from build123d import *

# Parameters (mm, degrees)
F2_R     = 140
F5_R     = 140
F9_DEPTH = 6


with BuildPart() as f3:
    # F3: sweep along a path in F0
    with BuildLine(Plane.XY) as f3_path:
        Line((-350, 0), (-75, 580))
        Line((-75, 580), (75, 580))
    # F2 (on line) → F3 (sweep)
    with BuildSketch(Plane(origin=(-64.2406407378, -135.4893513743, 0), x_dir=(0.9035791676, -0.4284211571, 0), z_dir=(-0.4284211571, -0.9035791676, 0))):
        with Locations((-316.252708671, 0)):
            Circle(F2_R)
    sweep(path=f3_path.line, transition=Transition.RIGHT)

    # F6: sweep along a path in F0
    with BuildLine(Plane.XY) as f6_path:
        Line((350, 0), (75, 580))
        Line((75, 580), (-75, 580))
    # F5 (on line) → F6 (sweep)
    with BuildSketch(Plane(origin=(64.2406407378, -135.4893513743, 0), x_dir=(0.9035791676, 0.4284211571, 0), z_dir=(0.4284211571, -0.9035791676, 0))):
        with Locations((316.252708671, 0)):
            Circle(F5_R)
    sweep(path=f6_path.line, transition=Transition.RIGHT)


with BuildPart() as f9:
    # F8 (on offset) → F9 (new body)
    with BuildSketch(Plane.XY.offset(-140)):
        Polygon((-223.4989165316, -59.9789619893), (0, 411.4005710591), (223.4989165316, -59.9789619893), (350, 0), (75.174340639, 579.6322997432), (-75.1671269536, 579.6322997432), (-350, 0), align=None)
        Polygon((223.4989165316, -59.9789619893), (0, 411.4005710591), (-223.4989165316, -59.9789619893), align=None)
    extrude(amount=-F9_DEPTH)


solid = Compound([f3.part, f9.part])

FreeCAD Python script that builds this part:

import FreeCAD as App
import Part
import Sketcher
Q = App.Units.Quantity

doc = App.newDocument("Part")
body = doc.addObject("PartDesign::Body", "Body")

# Sketch on an angled plane
sketch1 = doc.addObject("Sketcher::SketchObject", "Sketch")
body.addObject(sketch1)
sketch1.Placement = App.Placement(App.Vector(-64.240641, -135.489351, 0), App.Rotation(App.Vector(0.903579168, -0.428421157, 0), App.Vector(0, 0, 1.000000001), App.Vector(-0.428421157, -0.903579168, 0), "ZXY"))
sketch1.addGeometry(Part.Circle(App.Vector(-316.252709, 0, 0), App.Vector(0, 0, 1), 140), False)
sketch1.addConstraint([
    Sketcher.Constraint("PointOnObject", 0, 3, -1),
    Sketcher.Constraint("Diameter", 0, Q("280 mm")),
    Sketcher.Constraint("DistanceX", 0, 3, -1, 1, Q("316.252709 mm")),
])

# Sketch on XY plane
sketch2 = doc.addObject("Sketcher::SketchObject", "Sketch001")
body.addObject(sketch2)
sketch2.AttachmentSupport = (doc.XY_Plane, [""])
sketch2.MapMode = "FlatFace"
sketch2.addGeometry([
    Part.LineSegment(App.Vector(-350, 0, 0), App.Vector(-75, 580, 0)),
    Part.LineSegment(App.Vector(-75, 580, 0), App.Vector(75, 580, 0)),
], False)
sketch2.addConstraint([
    Sketcher.Constraint("Coincident", 0, 2, 1, 1),
    Sketcher.Constraint("Horizontal", 1),
    Sketcher.Constraint("PointOnObject", 0, 1, -1),
    Sketcher.Constraint("DistanceX", 1, 1, 1, 2, Q("150 mm")),
    Sketcher.Constraint("DistanceX", 0, 1, -1, 1, Q("350 mm")),
    Sketcher.Constraint("DistanceX", 0, 2, -1, 1, Q("75 mm")),
    Sketcher.Constraint("DistanceY", -1, 1, 0, 2, Q("580 mm")),
])
doc.recompute()

additivepipe = doc.addObject("PartDesign::AdditivePipe", "AdditivePipe")
body.addObject(additivepipe)
additivepipe.Profile = sketch1
additivepipe.Spine = (sketch2, ["Edge1", "Edge2"])
additivepipe.Transition = "Right corner"

# Sketch on an angled plane
sketch3 = doc.addObject("Sketcher::SketchObject", "Sketch002")
body.addObject(sketch3)
sketch3.Placement = App.Placement(App.Vector(64.240641, -135.489351, 0), App.Rotation(App.Vector(0.903579168, 0.428421157, 0), App.Vector(0, 0, 1.000000001), App.Vector(0.428421157, -0.903579168, 0), "ZXY"))
sketch3.addGeometry(Part.Circle(App.Vector(316.252709, 0, 0), App.Vector(0, 0, 1), 140), False)
sketch3.addConstraint([
    Sketcher.Constraint("PointOnObject", 0, 3, -1),
    Sketcher.Constraint("Diameter", 0, Q("280 mm")),
    Sketcher.Constraint("DistanceX", -1, 1, 0, 3, Q("316.252709 mm")),
])

# Sketch on XY plane
sketch4 = doc.addObject("Sketcher::SketchObject", "Sketch003")
body.addObject(sketch4)
sketch4.AttachmentSupport = (doc.XY_Plane, [""])
sketch4.MapMode = "FlatFace"
sketch4.addGeometry([
    Part.LineSegment(App.Vector(350, 0, 0), App.Vector(75, 580, 0)),
    Part.LineSegment(App.Vector(75, 580, 0), App.Vector(-75, 580, 0)),
], False)
sketch4.addConstraint([
    Sketcher.Constraint("Coincident", 0, 2, 1, 1),
    Sketcher.Constraint("Horizontal", 1),
    Sketcher.Constraint("PointOnObject", 0, 1, -1),
    Sketcher.Constraint("DistanceX", 1, 2, 1, 1, Q("150 mm")),
    Sketcher.Constraint("DistanceX", -1, 1, 0, 1, Q("350 mm")),
    Sketcher.Constraint("DistanceX", -1, 1, 0, 2, Q("75 mm")),
    Sketcher.Constraint("DistanceY", -1, 1, 0, 2, Q("580 mm")),
])
doc.recompute()

additivepipe2 = doc.addObject("PartDesign::AdditivePipe", "AdditivePipe001")
body.addObject(additivepipe2)
additivepipe2.Profile = sketch3
additivepipe2.Spine = (sketch4, ["Edge1", "Edge2"])
additivepipe2.Transition = "Right corner"
body2 = doc.addObject("PartDesign::Body", "Body001")

# Sketch on XY plane
sketch5 = doc.addObject("Sketcher::SketchObject", "Sketch004")
body2.addObject(sketch5)
sketch5.AttachmentSupport = (doc.getObject("XY_Plane001"), [""])
sketch5.MapMode = "FlatFace"
sketch5.AttachmentOffset = App.Placement(App.Vector(0, 0, -140), App.Rotation())
sketch5.addGeometry([
    Part.LineSegment(App.Vector(223.498917, -59.978962, 0), App.Vector(350, 0, 0)),  # 0
    Part.LineSegment(App.Vector(350, 0, 0), App.Vector(75.174341, 579.6323, 0)),  # 1
    Part.LineSegment(App.Vector(75.174341, 579.6323, 0), App.Vector(-75.167127, 579.6323, 0)),  # 2
    Part.LineSegment(App.Vector(-75.167127, 579.6323, 0), App.Vector(-350, 0, 0)),  # 3
    Part.LineSegment(App.Vector(-350, 0, 0), App.Vector(-223.498917, -59.978962, 0)),  # 4
    Part.LineSegment(App.Vector(-223.498917, -59.978962, 0), App.Vector(223.498917, -59.978962, 0)),  # 5
], False)
sketch5.addConstraint([
    Sketcher.Constraint("Coincident", 0, 2, 1, 1),
    Sketcher.Constraint("Coincident", 1, 2, 2, 1),
    Sketcher.Constraint("Coincident", 2, 2, 3, 1),
    Sketcher.Constraint("Coincident", 3, 2, 4, 1),
    Sketcher.Constraint("Coincident", 4, 2, 5, 1),
    Sketcher.Constraint("Coincident", 5, 2, 0, 1),
    Sketcher.Constraint("Horizontal", 2),
    Sketcher.Constraint("Horizontal", 5),
    Sketcher.Constraint("Symmetric", 0, 2, 3, 2, -1, 1),
    Sketcher.Constraint("PointOnObject", 0, 2, -1),
    Sketcher.Constraint("Perpendicular", 0, 1),
    Sketcher.Constraint("Equal", 0, 4),
    Sketcher.Constraint("Distance", 0, Q("140 mm")),
    Sketcher.Constraint("DistanceX", -1, 1, 0, 2, Q("350 mm")),
    Sketcher.Constraint("DistanceY", -1, 1, 1, 2, Q("579.6323 mm")),
    Sketcher.Constraint("Distance", 3, Q("641.487888 mm")),
    Sketcher.Constraint("DistanceX", 2, 2, 2, 1, Q("150.341468 mm")),
])
pad1 = doc.addObject("PartDesign::Pad", "Pad")
body2.addObject(pad1)
pad1.Profile = sketch5
pad1.Length = 6
pad1.Reversed = True

doc.recompute()
